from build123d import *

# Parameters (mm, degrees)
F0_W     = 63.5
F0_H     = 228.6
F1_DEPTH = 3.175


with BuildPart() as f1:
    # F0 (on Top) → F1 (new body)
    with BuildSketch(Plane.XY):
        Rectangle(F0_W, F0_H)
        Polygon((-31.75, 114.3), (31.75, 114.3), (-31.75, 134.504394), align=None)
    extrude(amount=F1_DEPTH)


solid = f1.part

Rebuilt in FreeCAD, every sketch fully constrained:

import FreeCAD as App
import Part
import Sketcher

V = App.Vector
Q = App.Units.Quantity

doc = App.newDocument("Part")
body = doc.addObject("PartDesign::Body", "Body")

# Sketch on XY plane
sketch1 = doc.addObject("Sketcher::SketchObject", "Sketch")
body.addObject(sketch1)
sketch1.AttachmentSupport = (doc.XY_Plane, [""])
sketch1.MapMode = "FlatFace"
sketch1.addGeometry(Part.LineSegment(V(-32, -114, 0), V(32, -114, 0)), False)
sketch1.addGeometry(Part.LineSegment(V(32, -114, 0), V(32, 114, 0)), False)
sketch1.addGeometry(Part.LineSegment(V(32, 114, 0), V(-32, 135, 0)), False)
sketch1.addGeometry(Part.LineSegment(V(-32, 135, 0), V(-32, -114, 0)), False)
sketch1.addConstraint(Sketcher.Constraint("Coincident", 0, 2, 1, 1))
sketch1.addConstraint(Sketcher.Constraint("Coincident", 1, 2, 2, 1))
sketch1.addConstraint(Sketcher.Constraint("Coincident", 2, 2, 3, 1))
sketch1.addConstraint(Sketcher.Constraint("Coincident", 3, 2, 0, 1))
sketch1.addConstraint(Sketcher.Constraint("Horizontal", 0))
sketch1.addConstraint(Sketcher.Constraint("Vertical", 1))
sketch1.addConstraint(Sketcher.Constraint("Vertical", 3))
sketch1.addConstraint(Sketcher.Constraint("Symmetric", 1, 2, 3, 2, -1, 1))
sketch1.addConstraint(Sketcher.Constraint("DistanceY", 1, 1, 1, 2, Q("9 in")))
sketch1.addConstraint(Sketcher.Constraint("DistanceX", 0, 1, 0, 2, Q("2.5 in")))
sketch1.addConstraint(Sketcher.Constraint("Angle", 2, Q("162.35 deg")))
pad1 = doc.addObject("PartDesign::Pad", "Pad")
body.addObject(pad1)
pad1.Profile = sketch1
pad1.Length = Q("0.125 in")

doc.recompute()
